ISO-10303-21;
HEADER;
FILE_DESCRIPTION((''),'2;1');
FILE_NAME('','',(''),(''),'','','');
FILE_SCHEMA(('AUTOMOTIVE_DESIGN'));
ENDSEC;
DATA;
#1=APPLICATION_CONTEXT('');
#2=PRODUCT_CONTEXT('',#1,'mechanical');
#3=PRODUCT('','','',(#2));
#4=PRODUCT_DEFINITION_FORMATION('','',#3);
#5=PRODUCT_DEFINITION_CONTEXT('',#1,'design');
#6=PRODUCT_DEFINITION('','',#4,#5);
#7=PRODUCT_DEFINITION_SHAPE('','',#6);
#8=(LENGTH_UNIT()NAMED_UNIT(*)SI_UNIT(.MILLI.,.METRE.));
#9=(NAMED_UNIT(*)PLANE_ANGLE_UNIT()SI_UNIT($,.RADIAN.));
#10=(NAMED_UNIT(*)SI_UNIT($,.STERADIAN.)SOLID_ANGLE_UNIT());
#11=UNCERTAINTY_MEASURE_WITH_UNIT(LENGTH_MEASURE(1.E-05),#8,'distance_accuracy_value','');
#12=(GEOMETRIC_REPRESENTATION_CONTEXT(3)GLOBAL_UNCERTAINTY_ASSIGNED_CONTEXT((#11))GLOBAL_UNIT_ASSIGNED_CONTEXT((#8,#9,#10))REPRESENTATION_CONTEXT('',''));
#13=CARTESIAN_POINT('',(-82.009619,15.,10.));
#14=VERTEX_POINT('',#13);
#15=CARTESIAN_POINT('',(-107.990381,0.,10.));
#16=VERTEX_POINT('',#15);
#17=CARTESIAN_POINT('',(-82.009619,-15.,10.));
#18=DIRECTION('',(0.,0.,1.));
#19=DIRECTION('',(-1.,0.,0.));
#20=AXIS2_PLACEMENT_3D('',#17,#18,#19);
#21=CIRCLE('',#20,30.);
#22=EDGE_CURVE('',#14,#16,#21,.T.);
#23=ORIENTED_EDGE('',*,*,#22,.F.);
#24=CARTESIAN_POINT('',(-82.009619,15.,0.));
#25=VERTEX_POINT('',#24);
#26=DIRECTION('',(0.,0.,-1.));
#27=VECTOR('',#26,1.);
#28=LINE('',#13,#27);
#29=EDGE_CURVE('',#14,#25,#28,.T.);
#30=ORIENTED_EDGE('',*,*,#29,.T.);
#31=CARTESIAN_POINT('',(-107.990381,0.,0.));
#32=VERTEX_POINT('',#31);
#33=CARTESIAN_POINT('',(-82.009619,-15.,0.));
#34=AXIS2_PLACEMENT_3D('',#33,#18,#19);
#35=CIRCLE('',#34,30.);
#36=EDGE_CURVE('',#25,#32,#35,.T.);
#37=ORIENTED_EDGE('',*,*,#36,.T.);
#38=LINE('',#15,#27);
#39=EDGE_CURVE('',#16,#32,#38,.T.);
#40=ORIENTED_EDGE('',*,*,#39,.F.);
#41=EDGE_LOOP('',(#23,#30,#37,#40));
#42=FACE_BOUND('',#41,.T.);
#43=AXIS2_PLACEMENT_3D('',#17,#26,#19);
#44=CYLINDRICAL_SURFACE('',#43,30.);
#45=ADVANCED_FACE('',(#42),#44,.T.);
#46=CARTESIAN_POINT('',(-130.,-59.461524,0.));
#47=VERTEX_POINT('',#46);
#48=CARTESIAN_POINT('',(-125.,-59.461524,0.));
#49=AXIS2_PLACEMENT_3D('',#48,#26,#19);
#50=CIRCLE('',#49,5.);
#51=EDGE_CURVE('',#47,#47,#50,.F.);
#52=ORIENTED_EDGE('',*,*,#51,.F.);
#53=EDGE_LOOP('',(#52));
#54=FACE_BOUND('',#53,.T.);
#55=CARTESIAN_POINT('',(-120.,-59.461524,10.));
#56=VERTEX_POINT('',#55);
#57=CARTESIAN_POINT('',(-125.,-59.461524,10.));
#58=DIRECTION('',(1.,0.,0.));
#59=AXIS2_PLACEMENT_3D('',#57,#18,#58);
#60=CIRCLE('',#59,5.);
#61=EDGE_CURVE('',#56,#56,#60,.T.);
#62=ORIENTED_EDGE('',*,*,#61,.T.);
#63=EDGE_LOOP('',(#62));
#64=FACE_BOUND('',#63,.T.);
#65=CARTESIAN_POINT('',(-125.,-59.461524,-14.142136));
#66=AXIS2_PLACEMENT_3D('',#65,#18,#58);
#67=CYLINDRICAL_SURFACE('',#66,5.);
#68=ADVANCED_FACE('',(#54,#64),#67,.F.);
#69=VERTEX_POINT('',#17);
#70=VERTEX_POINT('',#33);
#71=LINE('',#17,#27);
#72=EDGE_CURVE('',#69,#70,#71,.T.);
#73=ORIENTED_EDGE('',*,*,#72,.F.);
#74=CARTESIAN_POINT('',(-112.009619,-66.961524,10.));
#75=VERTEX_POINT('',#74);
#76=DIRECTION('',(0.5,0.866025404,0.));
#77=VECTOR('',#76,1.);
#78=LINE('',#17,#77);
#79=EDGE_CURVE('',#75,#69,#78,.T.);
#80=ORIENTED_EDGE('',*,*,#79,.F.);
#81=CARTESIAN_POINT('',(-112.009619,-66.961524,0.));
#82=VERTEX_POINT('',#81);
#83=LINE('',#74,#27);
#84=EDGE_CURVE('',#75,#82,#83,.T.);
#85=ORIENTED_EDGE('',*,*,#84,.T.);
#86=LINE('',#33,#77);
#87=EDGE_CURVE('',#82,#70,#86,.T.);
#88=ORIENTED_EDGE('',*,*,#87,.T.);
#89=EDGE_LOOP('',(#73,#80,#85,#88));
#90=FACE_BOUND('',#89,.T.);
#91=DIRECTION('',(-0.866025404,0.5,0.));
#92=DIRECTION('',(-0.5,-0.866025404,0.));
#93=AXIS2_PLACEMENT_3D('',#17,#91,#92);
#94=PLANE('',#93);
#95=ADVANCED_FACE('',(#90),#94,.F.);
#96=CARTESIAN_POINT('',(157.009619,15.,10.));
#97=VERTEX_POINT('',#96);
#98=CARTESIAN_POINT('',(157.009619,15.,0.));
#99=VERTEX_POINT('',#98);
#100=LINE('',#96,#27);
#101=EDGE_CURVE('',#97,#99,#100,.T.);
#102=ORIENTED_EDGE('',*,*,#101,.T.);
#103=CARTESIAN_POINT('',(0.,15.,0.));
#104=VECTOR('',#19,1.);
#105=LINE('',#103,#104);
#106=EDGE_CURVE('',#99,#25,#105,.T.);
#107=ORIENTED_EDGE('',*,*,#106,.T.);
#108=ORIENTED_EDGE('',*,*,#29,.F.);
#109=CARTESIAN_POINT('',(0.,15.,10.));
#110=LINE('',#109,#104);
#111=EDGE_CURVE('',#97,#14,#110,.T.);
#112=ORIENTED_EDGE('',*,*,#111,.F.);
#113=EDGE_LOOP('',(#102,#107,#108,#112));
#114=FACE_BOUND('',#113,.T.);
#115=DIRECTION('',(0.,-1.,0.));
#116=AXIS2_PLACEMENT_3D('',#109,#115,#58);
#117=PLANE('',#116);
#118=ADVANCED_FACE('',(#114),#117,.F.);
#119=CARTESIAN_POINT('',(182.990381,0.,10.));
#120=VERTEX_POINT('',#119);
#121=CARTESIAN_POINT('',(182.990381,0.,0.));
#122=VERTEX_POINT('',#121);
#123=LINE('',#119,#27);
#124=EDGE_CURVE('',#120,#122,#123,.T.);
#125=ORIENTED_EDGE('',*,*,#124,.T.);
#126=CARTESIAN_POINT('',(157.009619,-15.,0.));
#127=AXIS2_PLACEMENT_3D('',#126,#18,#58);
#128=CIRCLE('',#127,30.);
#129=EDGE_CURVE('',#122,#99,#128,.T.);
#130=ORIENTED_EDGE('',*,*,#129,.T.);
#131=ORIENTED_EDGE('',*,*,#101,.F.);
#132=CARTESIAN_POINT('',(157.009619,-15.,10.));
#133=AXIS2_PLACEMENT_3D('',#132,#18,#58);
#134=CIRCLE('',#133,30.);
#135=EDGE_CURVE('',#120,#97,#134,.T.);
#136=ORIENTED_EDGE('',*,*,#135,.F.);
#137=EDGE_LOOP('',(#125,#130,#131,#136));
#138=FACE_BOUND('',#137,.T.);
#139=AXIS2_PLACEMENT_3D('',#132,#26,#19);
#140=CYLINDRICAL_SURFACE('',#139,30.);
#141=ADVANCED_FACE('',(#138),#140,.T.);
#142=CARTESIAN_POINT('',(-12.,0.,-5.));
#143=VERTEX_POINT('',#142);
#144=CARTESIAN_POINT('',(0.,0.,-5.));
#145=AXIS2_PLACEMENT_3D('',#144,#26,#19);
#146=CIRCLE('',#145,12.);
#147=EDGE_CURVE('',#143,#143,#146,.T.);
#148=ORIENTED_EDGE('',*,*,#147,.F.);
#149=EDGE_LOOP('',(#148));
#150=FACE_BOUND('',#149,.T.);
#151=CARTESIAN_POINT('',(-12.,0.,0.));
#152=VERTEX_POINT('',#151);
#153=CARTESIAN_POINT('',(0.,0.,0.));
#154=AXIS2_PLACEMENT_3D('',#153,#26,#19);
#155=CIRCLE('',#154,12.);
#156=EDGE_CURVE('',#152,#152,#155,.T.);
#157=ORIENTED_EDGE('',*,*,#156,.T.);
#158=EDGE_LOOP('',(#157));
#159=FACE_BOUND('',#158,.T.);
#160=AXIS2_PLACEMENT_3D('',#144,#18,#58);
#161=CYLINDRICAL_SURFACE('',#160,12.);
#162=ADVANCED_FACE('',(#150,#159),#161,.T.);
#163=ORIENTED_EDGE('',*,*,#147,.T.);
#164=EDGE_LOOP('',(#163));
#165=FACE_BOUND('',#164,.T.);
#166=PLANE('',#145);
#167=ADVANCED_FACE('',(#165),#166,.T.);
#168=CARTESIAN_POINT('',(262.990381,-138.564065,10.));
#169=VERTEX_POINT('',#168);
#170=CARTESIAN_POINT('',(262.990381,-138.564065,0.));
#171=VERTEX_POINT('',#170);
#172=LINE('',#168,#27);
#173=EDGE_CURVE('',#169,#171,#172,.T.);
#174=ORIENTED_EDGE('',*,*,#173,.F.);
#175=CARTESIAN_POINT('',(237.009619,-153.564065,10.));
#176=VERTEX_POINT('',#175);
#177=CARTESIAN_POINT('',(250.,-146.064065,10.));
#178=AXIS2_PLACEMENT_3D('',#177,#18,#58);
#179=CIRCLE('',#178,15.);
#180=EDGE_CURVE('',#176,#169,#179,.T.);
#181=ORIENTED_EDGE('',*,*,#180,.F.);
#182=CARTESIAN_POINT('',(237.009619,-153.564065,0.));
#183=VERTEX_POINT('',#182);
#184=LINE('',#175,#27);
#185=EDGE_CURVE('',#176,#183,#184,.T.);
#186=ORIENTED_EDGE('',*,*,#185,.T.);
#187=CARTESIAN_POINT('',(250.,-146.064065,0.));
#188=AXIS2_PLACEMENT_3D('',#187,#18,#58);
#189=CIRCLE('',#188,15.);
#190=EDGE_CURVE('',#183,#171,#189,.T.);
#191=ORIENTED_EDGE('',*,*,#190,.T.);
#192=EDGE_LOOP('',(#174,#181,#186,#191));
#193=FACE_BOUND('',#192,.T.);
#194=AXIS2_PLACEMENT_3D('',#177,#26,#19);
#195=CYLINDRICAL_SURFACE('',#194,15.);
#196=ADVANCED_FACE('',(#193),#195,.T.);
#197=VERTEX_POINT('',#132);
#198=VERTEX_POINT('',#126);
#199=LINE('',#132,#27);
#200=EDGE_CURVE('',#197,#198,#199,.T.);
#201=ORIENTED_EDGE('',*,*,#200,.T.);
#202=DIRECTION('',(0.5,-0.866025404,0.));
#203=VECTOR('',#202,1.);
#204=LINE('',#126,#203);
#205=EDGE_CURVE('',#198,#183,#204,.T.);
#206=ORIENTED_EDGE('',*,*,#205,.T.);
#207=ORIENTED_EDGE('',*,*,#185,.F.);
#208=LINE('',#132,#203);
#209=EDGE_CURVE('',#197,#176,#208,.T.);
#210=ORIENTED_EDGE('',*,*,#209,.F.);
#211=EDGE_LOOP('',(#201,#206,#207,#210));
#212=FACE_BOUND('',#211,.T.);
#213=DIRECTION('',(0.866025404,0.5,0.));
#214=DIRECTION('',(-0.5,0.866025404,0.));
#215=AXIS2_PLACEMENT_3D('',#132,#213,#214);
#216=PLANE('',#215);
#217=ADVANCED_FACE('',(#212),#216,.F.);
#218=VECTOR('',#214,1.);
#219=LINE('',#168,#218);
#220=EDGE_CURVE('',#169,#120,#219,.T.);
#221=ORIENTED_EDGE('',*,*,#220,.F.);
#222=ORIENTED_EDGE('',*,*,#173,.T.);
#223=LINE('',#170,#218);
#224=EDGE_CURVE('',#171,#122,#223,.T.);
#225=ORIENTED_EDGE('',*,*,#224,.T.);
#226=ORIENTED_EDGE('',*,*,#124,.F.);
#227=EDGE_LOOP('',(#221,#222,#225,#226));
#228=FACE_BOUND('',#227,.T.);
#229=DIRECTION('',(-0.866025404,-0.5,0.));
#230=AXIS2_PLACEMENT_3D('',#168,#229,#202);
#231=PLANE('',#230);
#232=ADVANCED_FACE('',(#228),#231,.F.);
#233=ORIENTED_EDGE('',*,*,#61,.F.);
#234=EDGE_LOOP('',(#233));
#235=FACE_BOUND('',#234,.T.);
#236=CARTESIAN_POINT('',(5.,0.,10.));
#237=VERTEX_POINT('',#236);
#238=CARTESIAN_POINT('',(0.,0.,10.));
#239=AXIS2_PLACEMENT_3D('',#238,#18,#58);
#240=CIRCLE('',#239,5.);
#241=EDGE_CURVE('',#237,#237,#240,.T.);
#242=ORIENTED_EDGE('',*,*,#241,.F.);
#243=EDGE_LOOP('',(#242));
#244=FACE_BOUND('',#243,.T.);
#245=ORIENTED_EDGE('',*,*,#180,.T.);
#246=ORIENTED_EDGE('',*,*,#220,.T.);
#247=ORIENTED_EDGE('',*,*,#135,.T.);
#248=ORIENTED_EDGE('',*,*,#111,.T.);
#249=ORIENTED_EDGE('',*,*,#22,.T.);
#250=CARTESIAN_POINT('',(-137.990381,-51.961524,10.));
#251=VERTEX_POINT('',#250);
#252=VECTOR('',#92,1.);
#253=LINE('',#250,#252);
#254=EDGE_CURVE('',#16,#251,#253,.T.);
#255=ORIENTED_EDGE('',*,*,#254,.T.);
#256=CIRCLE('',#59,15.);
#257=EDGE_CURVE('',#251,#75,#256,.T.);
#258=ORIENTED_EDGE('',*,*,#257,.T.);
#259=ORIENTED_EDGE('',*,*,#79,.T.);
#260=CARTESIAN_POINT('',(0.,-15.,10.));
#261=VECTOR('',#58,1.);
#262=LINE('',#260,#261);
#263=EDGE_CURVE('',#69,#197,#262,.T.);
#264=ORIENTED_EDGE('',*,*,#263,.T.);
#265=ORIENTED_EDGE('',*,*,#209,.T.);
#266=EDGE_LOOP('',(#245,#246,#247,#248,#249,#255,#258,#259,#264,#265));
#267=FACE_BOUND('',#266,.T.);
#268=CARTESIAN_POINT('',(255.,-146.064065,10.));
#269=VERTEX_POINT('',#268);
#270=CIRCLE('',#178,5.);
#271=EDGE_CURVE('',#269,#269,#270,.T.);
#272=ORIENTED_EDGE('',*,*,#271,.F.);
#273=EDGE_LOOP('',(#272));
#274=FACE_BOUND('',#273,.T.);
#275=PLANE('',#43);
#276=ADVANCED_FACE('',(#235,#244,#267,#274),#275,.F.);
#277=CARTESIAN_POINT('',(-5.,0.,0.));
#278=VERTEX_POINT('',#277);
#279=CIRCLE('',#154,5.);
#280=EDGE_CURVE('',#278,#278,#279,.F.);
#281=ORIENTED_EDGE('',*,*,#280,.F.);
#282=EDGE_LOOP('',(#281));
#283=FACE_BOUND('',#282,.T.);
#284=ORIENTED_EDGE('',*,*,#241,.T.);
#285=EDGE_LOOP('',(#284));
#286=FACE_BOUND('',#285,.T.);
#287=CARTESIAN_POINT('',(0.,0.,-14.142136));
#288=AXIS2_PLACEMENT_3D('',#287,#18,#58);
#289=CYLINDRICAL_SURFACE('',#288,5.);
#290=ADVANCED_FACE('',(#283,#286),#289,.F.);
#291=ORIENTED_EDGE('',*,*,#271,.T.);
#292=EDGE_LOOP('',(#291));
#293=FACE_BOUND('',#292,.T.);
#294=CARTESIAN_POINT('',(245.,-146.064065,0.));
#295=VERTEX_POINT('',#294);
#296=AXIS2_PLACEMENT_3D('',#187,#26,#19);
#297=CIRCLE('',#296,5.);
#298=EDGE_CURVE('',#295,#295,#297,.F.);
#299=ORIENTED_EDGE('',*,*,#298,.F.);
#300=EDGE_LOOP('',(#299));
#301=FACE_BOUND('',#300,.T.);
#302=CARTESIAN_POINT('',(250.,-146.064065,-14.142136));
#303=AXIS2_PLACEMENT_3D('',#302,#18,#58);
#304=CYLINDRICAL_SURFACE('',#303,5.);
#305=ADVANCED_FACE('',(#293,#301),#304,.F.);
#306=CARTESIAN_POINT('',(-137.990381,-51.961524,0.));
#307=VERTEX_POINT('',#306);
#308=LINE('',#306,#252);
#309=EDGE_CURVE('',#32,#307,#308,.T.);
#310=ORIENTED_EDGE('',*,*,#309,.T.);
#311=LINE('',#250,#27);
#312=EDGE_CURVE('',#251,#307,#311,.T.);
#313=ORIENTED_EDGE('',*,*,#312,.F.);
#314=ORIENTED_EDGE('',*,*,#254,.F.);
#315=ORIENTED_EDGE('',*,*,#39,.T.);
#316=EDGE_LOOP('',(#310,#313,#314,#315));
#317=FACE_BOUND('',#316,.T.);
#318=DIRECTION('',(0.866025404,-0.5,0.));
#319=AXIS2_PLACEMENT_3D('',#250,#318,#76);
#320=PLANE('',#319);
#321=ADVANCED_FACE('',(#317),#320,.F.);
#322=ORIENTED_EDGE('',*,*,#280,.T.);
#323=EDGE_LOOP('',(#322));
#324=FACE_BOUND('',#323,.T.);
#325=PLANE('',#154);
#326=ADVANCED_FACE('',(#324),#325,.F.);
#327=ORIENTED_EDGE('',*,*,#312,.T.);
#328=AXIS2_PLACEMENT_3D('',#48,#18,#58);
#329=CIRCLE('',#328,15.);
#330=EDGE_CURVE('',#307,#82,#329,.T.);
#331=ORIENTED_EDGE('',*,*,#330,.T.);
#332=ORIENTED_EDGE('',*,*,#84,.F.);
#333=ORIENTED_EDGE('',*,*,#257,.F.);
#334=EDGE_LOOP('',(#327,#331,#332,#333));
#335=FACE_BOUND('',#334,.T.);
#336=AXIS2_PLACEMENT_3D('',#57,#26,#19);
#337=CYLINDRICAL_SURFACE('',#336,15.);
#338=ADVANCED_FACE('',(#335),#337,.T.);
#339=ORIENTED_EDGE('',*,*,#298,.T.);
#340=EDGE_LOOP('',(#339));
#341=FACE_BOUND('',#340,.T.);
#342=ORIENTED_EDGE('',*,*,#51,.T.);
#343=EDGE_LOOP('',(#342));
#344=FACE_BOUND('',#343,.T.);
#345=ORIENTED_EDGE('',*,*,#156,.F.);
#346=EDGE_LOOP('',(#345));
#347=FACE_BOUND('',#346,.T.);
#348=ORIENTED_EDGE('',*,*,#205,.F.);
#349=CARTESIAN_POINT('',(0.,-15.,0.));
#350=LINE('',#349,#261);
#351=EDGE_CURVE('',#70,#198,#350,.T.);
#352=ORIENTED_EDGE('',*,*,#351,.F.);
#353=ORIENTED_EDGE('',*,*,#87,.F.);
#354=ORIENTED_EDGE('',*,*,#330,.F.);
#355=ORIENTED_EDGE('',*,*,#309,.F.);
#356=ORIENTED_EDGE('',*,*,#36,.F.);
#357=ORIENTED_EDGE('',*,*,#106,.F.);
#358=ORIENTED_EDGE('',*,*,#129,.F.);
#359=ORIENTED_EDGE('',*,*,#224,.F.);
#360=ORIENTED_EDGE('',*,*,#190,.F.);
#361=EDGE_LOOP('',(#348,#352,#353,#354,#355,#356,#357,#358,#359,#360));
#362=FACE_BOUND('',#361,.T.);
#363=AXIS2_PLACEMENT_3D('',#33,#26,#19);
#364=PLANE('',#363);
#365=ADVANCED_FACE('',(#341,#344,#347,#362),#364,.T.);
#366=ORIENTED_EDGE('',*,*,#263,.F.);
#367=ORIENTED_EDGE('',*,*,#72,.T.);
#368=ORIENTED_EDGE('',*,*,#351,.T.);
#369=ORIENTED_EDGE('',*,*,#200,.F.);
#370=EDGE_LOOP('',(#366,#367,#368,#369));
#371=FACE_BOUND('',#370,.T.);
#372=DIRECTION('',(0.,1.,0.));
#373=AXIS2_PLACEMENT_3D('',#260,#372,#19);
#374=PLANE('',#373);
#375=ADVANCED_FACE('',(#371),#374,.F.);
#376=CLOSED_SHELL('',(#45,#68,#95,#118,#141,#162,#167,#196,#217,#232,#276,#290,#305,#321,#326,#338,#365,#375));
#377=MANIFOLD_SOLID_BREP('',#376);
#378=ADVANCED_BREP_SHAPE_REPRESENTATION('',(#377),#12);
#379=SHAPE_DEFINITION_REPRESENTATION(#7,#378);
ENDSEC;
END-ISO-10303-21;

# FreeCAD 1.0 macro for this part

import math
import FreeCAD as App
import Part
import Sketcher
from FreeCAD import Vector
Q = App.Units.Quantity

doc = App.newDocument("Part")
params = doc.addObject("Spreadsheet::Sheet", "Params")
for row, (alias, value) in enumerate([
    ("sketch1_radius", "15 mm"),
    ("sketch1_length", "60 mm"),
    ("sketch1_length2", "160 mm"),
    ("pad1_length", "10 mm"),
    ("sketch2_diameter", "10 mm"),
    ("pocket1_length", "10 mm"),
    ("sketch3_diameter", "24 mm"),
    ("pad2_length", "5 mm"),
], start=1):
    params.set(f"A{row}", alias)
    params.set(f"B{row}", "=" + value)
    params.setAlias(f"B{row}", alias)

body = doc.addObject("PartDesign::Body", "Body")

# Sketch on XY plane
sketch1 = body.newObject("Sketcher::SketchObject", "Sketch")
sketch1.AttachmentSupport = (doc.getObject("XY_Plane"), [""])
sketch1.MapMode = "FlatFace"
sketch1.addGeometry([
    Part.LineSegment(Vector(-112.009619, -66.961524, 0), Vector(-82.009619, -15, 0)),  # 0
    Part.LineSegment(Vector(-82.009619, -15, 0), Vector(157.009619, -15, 0)),  # 1
    Part.LineSegment(Vector(157.009619, -15, 0), Vector(237.009619, -153.564065, 0)),  # 2
    Part.ArcOfCircle(Part.Circle(Vector(250, -146.064065, 0), Vector(0, 0, 1), 15), math.radians(-150), math.radians(30)),  # 3
    Part.LineSegment(Vector(262.990381, -138.564065, 0), Vector(182.990381, 0, 0)),  # 4
    Part.ArcOfCircle(Part.Circle(Vector(157.009619, -15, 0), Vector(0, 0, 1), 30), math.radians(30), math.radians(90)),  # 5
    Part.LineSegment(Vector(157.009619, 15, 0), Vector(-82.009619, 15, 0)),  # 6
    Part.ArcOfCircle(Part.Circle(Vector(-82.009619, -15, 0), Vector(0, 0, 1), 30), math.radians(90), math.radians(150)),  # 7
    Part.LineSegment(Vector(-107.990381, 0, 0), Vector(-137.990381, -51.961524, 0)),  # 8
    Part.ArcOfCircle(Part.Circle(Vector(-125, -59.461524, 0), Vector(0, 0, 1), 15), math.radians(150), math.radians(330)),  # 9
], False)
sketch1.addConstraint([
    Sketcher.Constraint("Coincident", 0, 2, 1, 1),
    Sketcher.Constraint("Coincident", 1, 2, 2, 1),
    Sketcher.Constraint("Tangent", 2, 2, 3, 1),
    Sketcher.Constraint("Tangent", 3, 2, 4, 1),
    Sketcher.Constraint("Tangent", 4, 2, 5, 1),
    Sketcher.Constraint("Tangent", 5, 2, 6, 1),
    Sketcher.Constraint("Tangent", 6, 2, 7, 1),
    Sketcher.Constraint("Tangent", 7, 2, 8, 1),
    Sketcher.Constraint("Tangent", 8, 2, 9, 1),
    Sketcher.Constraint("Tangent", 9, 2, 0, 1),
    Sketcher.Constraint("Horizontal", 1),
    Sketcher.Constraint("Horizontal", 6),
    Sketcher.Constraint("Coincident", 0, 2, 7, 3),
    Sketcher.Constraint("Coincident", 1, 2, 5, 3),
    Sketcher.Constraint("Equal", 3, 9),
    Sketcher.Constraint("PointOnObject", 4, 2, -1),
    Sketcher.Constraint("PointOnObject", 7, 2, -1),
    Sketcher.Constraint("Parallel", 2, 4),
    Sketcher.Constraint("Radius", 3, Q("15 mm")),
    Sketcher.Constraint("Angle", 0, Q("60 deg")),
    Sketcher.Constraint("Distance", 0, Q("60 mm")),
    Sketcher.Constraint("Distance", 2, Q("160 mm")),
    Sketcher.Constraint("DistanceX", -1, 1, 3, 3, Q("250 mm")),
    Sketcher.Constraint("DistanceX", 9, 3, -1, 1, Q("125 mm")),
])
sketch1.setExpression("Constraints[18]", "Params.sketch1_radius")
sketch1.setExpression("Constraints[20]", "Params.sketch1_length")
sketch1.setExpression("Constraints[21]", "Params.sketch1_length2")
pad1 = body.newObject("PartDesign::Pad", "Pad")
pad1.Profile = sketch1
pad1.setExpression("Length", "Params.pad1_length")

# Sketch on XY plane
sketch2 = body.newObject("Sketcher::SketchObject", "Sketch001")
sketch2.AttachmentSupport = (doc.getObject("XY_Plane"), [""])
sketch2.MapMode = "FlatFace"
sketch2.AttachmentOffset = App.Placement(Vector(0, 0, 10), App.Rotation())
sketch2.addGeometry([
    Part.Circle(Vector(-125, -59.461524, 0), Vector(0, 0, 1), 5),
    Part.Circle(Vector(250, -146.064065, 0), Vector(0, 0, 1), 5),
    Part.Circle(Vector(0, 0, 0), Vector(0, 0, 1), 5),
], False)
sketch2.addConstraint([
    Sketcher.Constraint("Coincident", 2, 3, -1, 1),
    Sketcher.Constraint("Equal", 0, 1),
    Sketcher.Constraint("Equal", 1, 2),
    Sketcher.Constraint("Diameter", 0, Q("10 mm")),
    Sketcher.Constraint("DistanceX", 0, 3, -1, 1, Q("125 mm")),
    Sketcher.Constraint("DistanceX", -1, 1, 1, 3, Q("250 mm")),
    Sketcher.Constraint("DistanceY", 1, 3, 0, 3, Q("86.60254 mm")),
    Sketcher.Constraint("DistanceY", 0, 3, -1, 1, Q("59.461524 mm")),
])
sketch2.setExpression("Constraints[3]", "Params.sketch2_diameter")
pocket1 = body.newObject("PartDesign::Pocket", "Pocket")
pocket1.Profile = sketch2
pocket1.setExpression("Length", "Params.pocket1_length")

# Sketch on XY plane
sketch3 = body.newObject("Sketcher::SketchObject", "Sketch002")
sketch3.AttachmentSupport = (doc.getObject("XY_Plane"), [""])
sketch3.MapMode = "FlatFace"
sketch3.addGeometry(Part.Circle(Vector(0, 0, 0), Vector(0, 0, 1), 12), False)
sketch3.addConstraint([
    Sketcher.Constraint("Coincident", 0, 3, -1, 1),
    Sketcher.Constraint("Diameter", 0, Q("24 mm")),
])
sketch3.setExpression("Constraints[1]", "Params.sketch3_diameter")
pad2 = body.newObject("PartDesign::Pad", "Pad001")
pad2.Profile = sketch3
pad2.setExpression("Length", "Params.pad2_length")
pad2.Reversed = True

doc.recompute()
